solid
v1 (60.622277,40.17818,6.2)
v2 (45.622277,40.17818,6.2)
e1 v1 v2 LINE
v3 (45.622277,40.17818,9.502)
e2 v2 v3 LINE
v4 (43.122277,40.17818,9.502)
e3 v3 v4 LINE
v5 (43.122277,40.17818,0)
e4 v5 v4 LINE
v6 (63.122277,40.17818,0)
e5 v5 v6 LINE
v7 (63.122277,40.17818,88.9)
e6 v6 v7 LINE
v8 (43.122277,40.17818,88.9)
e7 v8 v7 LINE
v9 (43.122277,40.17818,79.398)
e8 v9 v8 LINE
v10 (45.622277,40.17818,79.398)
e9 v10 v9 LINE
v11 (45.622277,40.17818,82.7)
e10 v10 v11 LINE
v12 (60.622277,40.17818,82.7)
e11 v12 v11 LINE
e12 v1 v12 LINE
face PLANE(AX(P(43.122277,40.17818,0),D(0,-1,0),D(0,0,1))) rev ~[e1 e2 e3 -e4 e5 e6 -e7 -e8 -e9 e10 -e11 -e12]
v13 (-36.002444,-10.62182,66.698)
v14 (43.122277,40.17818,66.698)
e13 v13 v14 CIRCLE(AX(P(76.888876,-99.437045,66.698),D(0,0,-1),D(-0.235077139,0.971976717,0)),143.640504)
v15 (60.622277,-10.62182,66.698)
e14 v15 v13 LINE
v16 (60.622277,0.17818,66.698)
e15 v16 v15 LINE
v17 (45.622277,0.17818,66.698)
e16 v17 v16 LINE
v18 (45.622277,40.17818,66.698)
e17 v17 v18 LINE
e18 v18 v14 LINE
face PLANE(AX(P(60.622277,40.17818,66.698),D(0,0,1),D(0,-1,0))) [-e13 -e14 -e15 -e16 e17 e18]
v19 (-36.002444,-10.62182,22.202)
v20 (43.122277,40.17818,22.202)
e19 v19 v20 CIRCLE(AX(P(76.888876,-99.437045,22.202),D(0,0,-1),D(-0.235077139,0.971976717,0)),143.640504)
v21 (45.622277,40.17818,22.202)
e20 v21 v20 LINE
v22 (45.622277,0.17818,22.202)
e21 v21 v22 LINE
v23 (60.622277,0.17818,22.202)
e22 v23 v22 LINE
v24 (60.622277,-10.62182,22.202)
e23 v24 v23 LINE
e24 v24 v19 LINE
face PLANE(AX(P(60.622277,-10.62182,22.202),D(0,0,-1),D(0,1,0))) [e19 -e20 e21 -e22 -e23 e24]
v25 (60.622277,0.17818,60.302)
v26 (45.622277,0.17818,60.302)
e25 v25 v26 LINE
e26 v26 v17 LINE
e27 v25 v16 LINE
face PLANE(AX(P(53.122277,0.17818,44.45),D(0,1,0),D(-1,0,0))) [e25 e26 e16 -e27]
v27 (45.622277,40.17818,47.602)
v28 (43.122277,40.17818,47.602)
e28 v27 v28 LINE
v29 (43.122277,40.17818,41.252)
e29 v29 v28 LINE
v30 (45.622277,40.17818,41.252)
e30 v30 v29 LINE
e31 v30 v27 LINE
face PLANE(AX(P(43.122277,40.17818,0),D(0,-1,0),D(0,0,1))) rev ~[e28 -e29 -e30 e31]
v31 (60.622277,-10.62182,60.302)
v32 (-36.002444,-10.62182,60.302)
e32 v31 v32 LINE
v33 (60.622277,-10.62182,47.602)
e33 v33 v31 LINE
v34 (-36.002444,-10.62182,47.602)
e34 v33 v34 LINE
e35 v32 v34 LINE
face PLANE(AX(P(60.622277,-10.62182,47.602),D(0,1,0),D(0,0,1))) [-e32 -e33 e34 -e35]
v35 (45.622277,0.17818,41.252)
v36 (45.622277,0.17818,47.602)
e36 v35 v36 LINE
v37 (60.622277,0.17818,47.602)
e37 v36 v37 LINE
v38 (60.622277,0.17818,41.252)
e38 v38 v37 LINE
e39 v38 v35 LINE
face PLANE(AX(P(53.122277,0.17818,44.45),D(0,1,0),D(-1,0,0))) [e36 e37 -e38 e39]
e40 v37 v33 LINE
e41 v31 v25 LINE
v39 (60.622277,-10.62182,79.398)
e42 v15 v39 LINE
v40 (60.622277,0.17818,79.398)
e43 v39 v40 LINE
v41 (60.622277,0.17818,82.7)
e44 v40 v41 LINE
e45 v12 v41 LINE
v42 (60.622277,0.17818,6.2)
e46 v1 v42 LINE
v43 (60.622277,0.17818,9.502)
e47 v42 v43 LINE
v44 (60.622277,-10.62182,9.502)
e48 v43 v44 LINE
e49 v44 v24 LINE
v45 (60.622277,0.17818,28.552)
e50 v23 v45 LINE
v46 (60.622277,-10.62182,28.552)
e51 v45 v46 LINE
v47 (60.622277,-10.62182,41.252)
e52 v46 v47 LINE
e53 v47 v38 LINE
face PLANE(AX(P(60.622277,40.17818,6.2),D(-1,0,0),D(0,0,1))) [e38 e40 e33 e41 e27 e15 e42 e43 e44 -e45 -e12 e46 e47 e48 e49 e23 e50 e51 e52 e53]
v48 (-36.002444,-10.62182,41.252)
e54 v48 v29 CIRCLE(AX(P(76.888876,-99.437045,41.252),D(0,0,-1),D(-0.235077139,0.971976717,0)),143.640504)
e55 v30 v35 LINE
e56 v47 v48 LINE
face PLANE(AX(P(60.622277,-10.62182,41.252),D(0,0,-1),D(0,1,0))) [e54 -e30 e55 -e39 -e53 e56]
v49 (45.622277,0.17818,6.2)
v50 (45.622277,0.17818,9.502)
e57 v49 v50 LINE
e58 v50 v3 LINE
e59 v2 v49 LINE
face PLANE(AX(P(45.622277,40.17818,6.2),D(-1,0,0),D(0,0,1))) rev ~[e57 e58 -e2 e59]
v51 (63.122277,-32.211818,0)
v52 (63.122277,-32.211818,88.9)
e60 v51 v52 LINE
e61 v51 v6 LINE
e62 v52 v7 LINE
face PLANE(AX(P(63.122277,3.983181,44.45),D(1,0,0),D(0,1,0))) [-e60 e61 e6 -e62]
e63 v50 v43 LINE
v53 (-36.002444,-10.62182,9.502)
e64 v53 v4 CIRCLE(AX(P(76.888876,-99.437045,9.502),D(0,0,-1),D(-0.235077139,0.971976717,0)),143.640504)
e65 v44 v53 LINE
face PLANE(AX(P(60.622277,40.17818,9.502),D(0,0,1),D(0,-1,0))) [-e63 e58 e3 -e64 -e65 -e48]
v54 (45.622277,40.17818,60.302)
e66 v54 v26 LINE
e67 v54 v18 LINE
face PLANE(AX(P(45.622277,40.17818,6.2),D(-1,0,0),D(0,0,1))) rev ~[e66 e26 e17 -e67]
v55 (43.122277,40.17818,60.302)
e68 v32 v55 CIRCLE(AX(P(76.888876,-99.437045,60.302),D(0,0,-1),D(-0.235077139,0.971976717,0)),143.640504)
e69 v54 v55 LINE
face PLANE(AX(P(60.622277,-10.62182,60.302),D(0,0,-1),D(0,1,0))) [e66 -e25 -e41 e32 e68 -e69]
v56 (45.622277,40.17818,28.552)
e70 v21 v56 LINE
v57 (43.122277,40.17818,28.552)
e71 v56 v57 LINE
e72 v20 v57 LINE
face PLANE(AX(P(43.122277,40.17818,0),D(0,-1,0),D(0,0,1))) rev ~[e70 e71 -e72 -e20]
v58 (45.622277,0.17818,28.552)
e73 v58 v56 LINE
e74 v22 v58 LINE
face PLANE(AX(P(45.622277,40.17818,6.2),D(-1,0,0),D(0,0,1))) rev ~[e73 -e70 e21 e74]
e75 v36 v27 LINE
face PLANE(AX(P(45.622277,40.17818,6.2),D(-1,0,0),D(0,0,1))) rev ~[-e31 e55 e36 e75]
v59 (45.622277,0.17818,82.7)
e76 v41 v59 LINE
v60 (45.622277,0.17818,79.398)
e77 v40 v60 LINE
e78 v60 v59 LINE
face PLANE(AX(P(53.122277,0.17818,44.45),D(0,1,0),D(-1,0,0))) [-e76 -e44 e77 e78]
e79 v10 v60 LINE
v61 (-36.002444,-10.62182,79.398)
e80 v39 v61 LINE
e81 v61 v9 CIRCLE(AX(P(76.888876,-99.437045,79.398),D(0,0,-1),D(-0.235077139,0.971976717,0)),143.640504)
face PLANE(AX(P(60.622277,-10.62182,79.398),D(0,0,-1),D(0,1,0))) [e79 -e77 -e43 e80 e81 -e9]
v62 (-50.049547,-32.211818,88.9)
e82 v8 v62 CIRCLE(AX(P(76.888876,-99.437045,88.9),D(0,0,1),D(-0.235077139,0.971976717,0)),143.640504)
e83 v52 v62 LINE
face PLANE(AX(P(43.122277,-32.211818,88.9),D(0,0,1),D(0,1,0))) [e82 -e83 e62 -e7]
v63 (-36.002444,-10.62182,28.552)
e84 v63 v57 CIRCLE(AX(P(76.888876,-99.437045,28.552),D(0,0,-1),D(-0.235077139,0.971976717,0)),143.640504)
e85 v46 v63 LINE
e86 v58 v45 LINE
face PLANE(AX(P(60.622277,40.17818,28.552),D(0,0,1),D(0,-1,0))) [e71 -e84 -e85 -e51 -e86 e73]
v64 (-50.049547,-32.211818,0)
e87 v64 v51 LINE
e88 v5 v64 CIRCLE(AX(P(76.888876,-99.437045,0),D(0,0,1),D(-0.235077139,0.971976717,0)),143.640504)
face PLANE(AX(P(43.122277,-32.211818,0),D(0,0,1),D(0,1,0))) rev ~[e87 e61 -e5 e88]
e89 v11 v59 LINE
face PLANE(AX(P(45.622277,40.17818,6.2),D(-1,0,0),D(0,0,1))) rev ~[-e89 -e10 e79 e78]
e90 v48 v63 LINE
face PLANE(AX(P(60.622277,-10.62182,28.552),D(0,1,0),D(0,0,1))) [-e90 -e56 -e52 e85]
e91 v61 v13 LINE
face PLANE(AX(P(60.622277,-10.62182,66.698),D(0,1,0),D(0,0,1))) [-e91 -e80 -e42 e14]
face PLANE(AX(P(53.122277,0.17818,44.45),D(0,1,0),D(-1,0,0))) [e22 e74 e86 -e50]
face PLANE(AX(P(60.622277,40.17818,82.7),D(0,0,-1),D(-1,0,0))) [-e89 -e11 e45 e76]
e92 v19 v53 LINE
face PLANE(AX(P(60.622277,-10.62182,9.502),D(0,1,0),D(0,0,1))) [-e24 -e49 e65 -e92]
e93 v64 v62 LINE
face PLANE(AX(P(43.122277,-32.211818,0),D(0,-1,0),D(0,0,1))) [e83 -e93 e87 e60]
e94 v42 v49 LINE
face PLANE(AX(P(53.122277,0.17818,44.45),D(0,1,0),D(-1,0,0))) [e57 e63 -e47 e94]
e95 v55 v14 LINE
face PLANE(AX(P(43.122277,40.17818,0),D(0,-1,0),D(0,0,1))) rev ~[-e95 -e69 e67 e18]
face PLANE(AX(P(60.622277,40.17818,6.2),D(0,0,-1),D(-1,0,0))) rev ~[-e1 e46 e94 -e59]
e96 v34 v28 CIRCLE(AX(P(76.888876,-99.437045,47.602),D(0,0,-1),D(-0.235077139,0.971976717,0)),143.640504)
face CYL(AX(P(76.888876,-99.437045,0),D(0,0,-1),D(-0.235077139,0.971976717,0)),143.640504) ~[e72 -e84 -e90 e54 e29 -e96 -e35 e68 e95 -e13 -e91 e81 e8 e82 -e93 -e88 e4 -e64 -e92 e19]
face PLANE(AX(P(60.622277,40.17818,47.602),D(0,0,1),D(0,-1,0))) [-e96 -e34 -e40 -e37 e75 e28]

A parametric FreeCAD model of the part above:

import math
import FreeCAD as App
import Part
import Sketcher
Q = App.Units.Quantity


def add_polygon(sketch, points):
    """Adds a closed chain of lines whose ends are joined by coincident constraints."""
    first, n = sketch.GeometryCount, len(points)
    for a, b in zip(points, points[1:] + points[:1]):
        sketch.addGeometry(Part.LineSegment(App.Vector(*a, 0), App.Vector(*b, 0)), False)
    for i in range(n):
        sketch.addConstraint(Sketcher.Constraint("Coincident", first + i, 2, first + (i + 1) % n, 1))

doc = App.newDocument("Part")
body = doc.addObject("PartDesign::Body", "Body")

sketch1 = doc.addObject("Sketcher::SketchObject", "Sketch")
body.addObject(sketch1)
sketch1.AttachmentSupport = (doc.XY_Plane, [""])
sketch1.MapMode = "FlatFace"
sketch1.addGeometry(Part.ArcOfCircle(Part.Circle(App.Vector(77, -99, 0), App.Vector(0, 0, 1), 144), math.radians(104), math.radians(152)), False)
sketch1.addGeometry(Part.LineSegment(App.Vector(-50, -32, 0), App.Vector(43, -32, 0)), False)
sketch1.addGeometry(Part.LineSegment(App.Vector(43, -32, 0), App.Vector(43, 40, 0)), False)
sketch1.addConstraint(Sketcher.Constraint("Coincident", 0, 2, 1, 1))
sketch1.addConstraint(Sketcher.Constraint("Coincident", 1, 2, 2, 1))
sketch1.addConstraint(Sketcher.Constraint("Coincident", 2, 2, 0, 1))
sketch1.addConstraint(Sketcher.Constraint("Horizontal", 1))
sketch1.addConstraint(Sketcher.Constraint("Vertical", 2))
sketch1.addConstraint(Sketcher.Constraint("Radius", 0, Q("143.640504 mm")))
sketch1.addConstraint(Sketcher.Constraint("DistanceX", 1, 2, 0, 3, Q("33.766599 mm")))
sketch1.addConstraint(Sketcher.Constraint("DistanceX", 1, 1, 1, 2, Q("93.171824 mm")))
sketch1.addConstraint(Sketcher.Constraint("DistanceY", -1, 1, 2, 2, Q("40.17818 mm")))
sketch1.addConstraint(Sketcher.Constraint("DistanceX", -1, 1, 0, 3, Q("76.888876 mm")))
pad1 = doc.addObject("PartDesign::Pad", "Pad")
body.addObject(pad1)
pad1.Profile = sketch1
pad1.Length = 88.9

sketch2 = doc.addObject("Sketcher::SketchObject", "Sketch001")
body.addObject(sketch2)
sketch2.AttachmentSupport = (doc.YZ_Plane, [""])
sketch2.MapMode = "FlatFace"
sketch2.AttachmentOffset = App.Placement(App.Vector(0, 0, 43.122277), App.Rotation())
add_polygon(sketch2, [(-32, 89), (-32, 0), (40, 0), (40, 89)])
sketch2.addConstraint(Sketcher.Constraint("Vertical", 0))
sketch2.addConstraint(Sketcher.Constraint("Horizontal", 1))
sketch2.addConstraint(Sketcher.Constraint("Vertical", 2))
sketch2.addConstraint(Sketcher.Constraint("Horizontal", 3))
sketch2.addConstraint(Sketcher.Constraint("PointOnObject", 0, 2, -1))
sketch2.addConstraint(Sketcher.Constraint("DistanceY", 0, 2, 0, 1, Q("88.9 mm")))
sketch2.addConstraint(Sketcher.Constraint("DistanceX", 1, 1, 1, 2, Q("72.389998 mm")))
sketch2.addConstraint(Sketcher.Constraint("DistanceX", -1, 1, 1, 2, Q("40.17818 mm")))
pad2 = doc.addObject("PartDesign::Pad", "Pad001")
body.addObject(pad2)
pad2.Profile = sketch2
pad2.Length = 20

sketch3 = doc.addObject("Sketcher::SketchObject", "Sketch002")
body.addObject(sketch3)
sketch3.AttachmentSupport = (doc.XZ_Plane, [""])
sketch3.MapMode = "FlatFace"
sketch3.AttachmentOffset = App.Placement(App.Vector(0, 0, -40.17818), App.Rotation())
add_polygon(sketch3, [(61, 83), (61, 6), (46, 6), (46, 83)])
sketch3.addConstraint(Sketcher.Constraint("Vertical", 0))
sketch3.addConstraint(Sketcher.Constraint("Horizontal", 1))
sketch3.addConstraint(Sketcher.Constraint("Vertical", 2))
sketch3.addConstraint(Sketcher.Constraint("Horizontal", 3))
sketch3.addConstraint(Sketcher.Constraint("DistanceX", 1, 2, 1, 1, Q("15 mm")))
sketch3.addConstraint(Sketcher.Constraint("DistanceY", 0, 2, 0, 1, Q("76.5 mm")))
sketch3.addConstraint(Sketcher.Constraint("DistanceY", -1, 1, 0, 2, Q("6.2 mm")))
sketch3.addConstraint(Sketcher.Constraint("DistanceX", -1, 1, 0, 2, Q("60.622277 mm")))
pocket1 = doc.addObject("PartDesign::Pocket", "Pocket")
body.addObject(pocket1)
pocket1.Profile = sketch3
pocket1.Length = 40
pocket1.Reversed = True

sketch4 = doc.addObject("Sketcher::SketchObject", "Sketch003")
body.addObject(sketch4)
sketch4.AttachmentSupport = (doc.YZ_Plane, [""])
sketch4.MapMode = "FlatFace"
sketch4.AttachmentOffset = App.Placement(App.Vector(0, 0, 60.622277), App.Rotation())
add_polygon(sketch4, [(-11, 10), (-11, 22), (40, 22), (40, 10)])
add_polygon(sketch4, [(-11, 29), (-11, 41), (40, 41), (40, 29)])
add_polygon(sketch4, [(-11, 48), (-11, 60), (40, 60), (40, 48)])
add_polygon(sketch4, [(-11, 67), (-11, 79), (40, 79), (40, 67)])
sketch4.addConstraint(Sketcher.Constraint("Vertical", 0))
sketch4.addConstraint(Sketcher.Constraint("Horizontal", 1))
sketch4.addConstraint(Sketcher.Constraint("Vertical", 2))
sketch4.addConstraint(Sketcher.Constraint("Horizontal", 3))
sketch4.addConstraint(Sketcher.Constraint("Vertical", 4))
sketch4.addConstraint(Sketcher.Constraint("Horizontal", 5))
sketch4.addConstraint(Sketcher.Constraint("Vertical", 6))
sketch4.addConstraint(Sketcher.Constraint("Horizontal", 7))
sketch4.addConstraint(Sketcher.Constraint("Vertical", 8))
sketch4.addConstraint(Sketcher.Constraint("Horizontal", 9))
sketch4.addConstraint(Sketcher.Constraint("Vertical", 10))
sketch4.addConstraint(Sketcher.Constraint("Horizontal", 11))
sketch4.addConstraint(Sketcher.Constraint("Vertical", 12))
sketch4.addConstraint(Sketcher.Constraint("Horizontal", 13))
sketch4.addConstraint(Sketcher.Constraint("Vertical", 14))
sketch4.addConstraint(Sketcher.Constraint("Horizontal", 15))
sketch4.addConstraint(Sketcher.Constraint("Vertical", 3, 2, 4, 2))
sketch4.addConstraint(Sketcher.Constraint("Vertical", 2, 2, 5, 2))
sketch4.addConstraint(Sketcher.Constraint("Vertical", 7, 2, 8, 2))
sketch4.addConstraint(Sketcher.Constraint("Vertical", 6, 2, 9, 2))
sketch4.addConstraint(Sketcher.Constraint("Vertical", 11, 2, 12, 2))
sketch4.addConstraint(Sketcher.Constraint("Vertical", 10, 2, 13, 2))
sketch4.addConstraint(Sketcher.Constraint("Equal", 2, 4))
sketch4.addConstraint(Sketcher.Constraint("Equal", 6, 8))
sketch4.addConstraint(Sketcher.Constraint("Equal", 10, 12))
sketch4.addConstraint(Sketcher.Constraint("DistanceX", 1, 1, 1, 2, Q("50.8 mm")))
sketch4.addConstraint(Sketcher.Constraint("DistanceY", 0, 1, 0, 2, Q("12.7 mm")))
sketch4.addConstraint(Sketcher.Constraint("DistanceY", 0, 2, 8, 2, Q("38.1 mm")))
sketch4.addConstraint(Sketcher.Constraint("DistanceY", 0, 2, 4, 2, Q("19.05 mm")))
sketch4.addConstraint(Sketcher.Constraint("DistanceY", -1, 1, 0, 2, Q("22.202 mm")))
sketch4.addConstraint(Sketcher.Constraint("DistanceY", -1, 1, 12, 2, Q("79.398 mm")))
sketch4.addConstraint(Sketcher.Constraint("DistanceX", 0, 2, -1, 1, Q("10.62182 mm")))
pocket2 = doc.addObject("PartDesign::Pocket", "Pocket001")
body.addObject(pocket2)
pocket2.Profile = sketch4
pocket2.Type = "ThroughAll"

doc.recompute()
